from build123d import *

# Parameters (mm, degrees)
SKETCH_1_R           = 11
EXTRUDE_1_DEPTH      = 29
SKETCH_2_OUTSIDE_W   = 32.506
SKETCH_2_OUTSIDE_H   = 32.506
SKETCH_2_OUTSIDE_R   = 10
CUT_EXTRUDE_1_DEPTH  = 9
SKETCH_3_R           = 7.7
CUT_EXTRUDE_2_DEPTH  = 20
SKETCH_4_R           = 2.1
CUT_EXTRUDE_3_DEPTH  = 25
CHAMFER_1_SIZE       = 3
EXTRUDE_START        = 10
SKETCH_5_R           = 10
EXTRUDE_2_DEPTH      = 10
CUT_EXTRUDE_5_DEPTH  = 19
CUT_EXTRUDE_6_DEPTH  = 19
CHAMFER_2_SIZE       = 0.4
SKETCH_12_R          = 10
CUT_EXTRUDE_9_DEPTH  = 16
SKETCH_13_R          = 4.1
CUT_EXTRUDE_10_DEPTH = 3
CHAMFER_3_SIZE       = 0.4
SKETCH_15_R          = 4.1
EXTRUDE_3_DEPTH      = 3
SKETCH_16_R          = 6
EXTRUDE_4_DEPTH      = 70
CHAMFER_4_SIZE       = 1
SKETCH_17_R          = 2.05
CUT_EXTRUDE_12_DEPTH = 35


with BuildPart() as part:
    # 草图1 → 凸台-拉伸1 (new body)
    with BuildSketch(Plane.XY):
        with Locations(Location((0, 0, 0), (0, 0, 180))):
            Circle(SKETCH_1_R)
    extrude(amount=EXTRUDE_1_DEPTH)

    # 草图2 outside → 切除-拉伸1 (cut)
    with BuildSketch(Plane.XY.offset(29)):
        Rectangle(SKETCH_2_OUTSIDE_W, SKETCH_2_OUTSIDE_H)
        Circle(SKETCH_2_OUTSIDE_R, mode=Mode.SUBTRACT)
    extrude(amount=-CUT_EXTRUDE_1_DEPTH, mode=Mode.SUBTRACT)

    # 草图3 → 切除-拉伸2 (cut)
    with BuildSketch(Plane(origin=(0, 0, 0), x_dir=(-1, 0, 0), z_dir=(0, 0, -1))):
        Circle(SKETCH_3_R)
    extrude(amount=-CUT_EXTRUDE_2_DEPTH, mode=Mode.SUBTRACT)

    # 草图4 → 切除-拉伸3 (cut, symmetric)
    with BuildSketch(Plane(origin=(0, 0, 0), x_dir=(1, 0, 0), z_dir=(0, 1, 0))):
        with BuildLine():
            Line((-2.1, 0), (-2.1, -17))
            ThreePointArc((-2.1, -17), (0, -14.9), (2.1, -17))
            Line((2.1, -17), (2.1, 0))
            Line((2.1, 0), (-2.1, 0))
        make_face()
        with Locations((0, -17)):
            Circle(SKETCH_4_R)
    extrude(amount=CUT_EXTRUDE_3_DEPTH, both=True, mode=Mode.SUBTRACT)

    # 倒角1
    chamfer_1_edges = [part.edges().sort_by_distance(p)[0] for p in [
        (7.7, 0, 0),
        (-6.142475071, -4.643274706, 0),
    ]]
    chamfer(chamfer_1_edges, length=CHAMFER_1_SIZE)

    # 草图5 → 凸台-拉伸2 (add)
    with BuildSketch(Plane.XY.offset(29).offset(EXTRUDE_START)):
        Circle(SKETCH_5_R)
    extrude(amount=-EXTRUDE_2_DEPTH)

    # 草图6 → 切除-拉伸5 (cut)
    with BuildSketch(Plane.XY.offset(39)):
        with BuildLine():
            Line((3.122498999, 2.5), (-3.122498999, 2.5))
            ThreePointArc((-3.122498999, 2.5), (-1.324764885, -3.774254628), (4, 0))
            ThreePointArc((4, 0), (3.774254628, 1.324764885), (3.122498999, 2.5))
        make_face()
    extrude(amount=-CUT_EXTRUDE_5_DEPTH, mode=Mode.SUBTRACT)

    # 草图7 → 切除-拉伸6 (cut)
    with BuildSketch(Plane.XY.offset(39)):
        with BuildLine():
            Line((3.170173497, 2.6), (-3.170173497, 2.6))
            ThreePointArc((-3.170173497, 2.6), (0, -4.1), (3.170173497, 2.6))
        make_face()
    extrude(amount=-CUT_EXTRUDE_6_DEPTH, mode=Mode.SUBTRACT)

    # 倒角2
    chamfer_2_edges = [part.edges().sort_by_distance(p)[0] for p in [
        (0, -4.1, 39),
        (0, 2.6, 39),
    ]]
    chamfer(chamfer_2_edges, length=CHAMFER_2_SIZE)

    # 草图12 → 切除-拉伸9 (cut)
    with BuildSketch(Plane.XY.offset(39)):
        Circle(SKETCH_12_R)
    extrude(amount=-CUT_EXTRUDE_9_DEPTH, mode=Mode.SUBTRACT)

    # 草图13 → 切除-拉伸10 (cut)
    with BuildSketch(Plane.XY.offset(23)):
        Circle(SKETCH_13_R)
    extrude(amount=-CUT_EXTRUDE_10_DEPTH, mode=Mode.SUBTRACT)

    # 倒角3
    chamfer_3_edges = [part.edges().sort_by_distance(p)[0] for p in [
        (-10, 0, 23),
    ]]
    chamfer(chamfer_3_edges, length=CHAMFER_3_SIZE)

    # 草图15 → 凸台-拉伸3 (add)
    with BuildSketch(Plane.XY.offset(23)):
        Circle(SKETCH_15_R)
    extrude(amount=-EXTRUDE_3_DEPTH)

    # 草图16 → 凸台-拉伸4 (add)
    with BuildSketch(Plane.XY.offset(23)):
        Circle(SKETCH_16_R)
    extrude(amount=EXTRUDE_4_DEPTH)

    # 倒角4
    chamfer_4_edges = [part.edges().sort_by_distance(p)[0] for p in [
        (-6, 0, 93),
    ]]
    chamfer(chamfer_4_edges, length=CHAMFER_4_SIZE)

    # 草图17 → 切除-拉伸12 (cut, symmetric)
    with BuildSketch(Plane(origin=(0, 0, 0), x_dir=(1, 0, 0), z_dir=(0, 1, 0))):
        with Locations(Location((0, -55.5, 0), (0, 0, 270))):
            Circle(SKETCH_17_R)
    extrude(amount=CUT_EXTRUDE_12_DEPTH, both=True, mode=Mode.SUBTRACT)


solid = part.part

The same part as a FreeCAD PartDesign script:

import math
import FreeCAD as App
import Part
import Sketcher

V = App.Vector
Q = App.Units.Quantity


def edges_at(feature, points):
    """Names of the edges that pass closest to the given points."""
    edges = feature.Shape.Edges
    near = lambda p: min(range(len(edges)), key=lambda i: edges[i].distToShape(Part.Vertex(*p))[0])
    return sorted({f"Edge{near(p) + 1}" for p in points})

doc = App.newDocument("Part")
body = doc.addObject("PartDesign::Body", "Body")

sketch1 = doc.addObject("Sketcher::SketchObject", "Sketch")
body.addObject(sketch1)
sketch1.AttachmentSupport = (doc.XY_Plane, [""])
sketch1.MapMode = "FlatFace"
sketch1.addGeometry(Part.Circle(V(0, 0, 0), V(0, 0, 1), 11), False)
sketch1.addConstraint(Sketcher.Constraint("Coincident", 0, 3, -1, 1))
sketch1.addConstraint(Sketcher.Constraint("Diameter", 0, Q("22 mm")))
pad1 = doc.addObject("PartDesign::Pad", "Pad")
body.addObject(pad1)
pad1.Profile = sketch1
pad1.Length = 29

sketch2 = doc.addObject("Sketcher::SketchObject", "Sketch001")
body.addObject(sketch2)
sketch2.AttachmentSupport = (doc.XY_Plane, [""])
sketch2.MapMode = "FlatFace"
sketch2.AttachmentOffset = App.Placement(V(0, 0, 29), App.Rotation())
sketch2.addGeometry(Part.LineSegment(V(-16, 16, 0), V(-16, -16, 0)), False)
sketch2.addGeometry(Part.LineSegment(V(-16, -16, 0), V(16, -16, 0)), False)
sketch2.addGeometry(Part.LineSegment(V(16, -16, 0), V(16, 16, 0)), False)
sketch2.addGeometry(Part.LineSegment(V(16, 16, 0), V(-16, 16, 0)), False)
sketch2.addGeometry(Part.Circle(V(0, 0, 0), V(0, 0, 1), 10), False)
sketch2.addConstraint(Sketcher.Constraint("Coincident", 0, 2, 1, 1))
sketch2.addConstraint(Sketcher.Constraint("Coincident", 1, 2, 2, 1))
sketch2.addConstraint(Sketcher.Constraint("Coincident", 2, 2, 3, 1))
sketch2.addConstraint(Sketcher.Constraint("Coincident", 3, 2, 0, 1))
sketch2.addConstraint(Sketcher.Constraint("Vertical", 0))
sketch2.addConstraint(Sketcher.Constraint("Horizontal", 1))
sketch2.addConstraint(Sketcher.Constraint("Vertical", 2))
sketch2.addConstraint(Sketcher.Constraint("Horizontal", 3))
sketch2.addConstraint(Sketcher.Constraint("Coincident", 4, 3, -1, 1))
sketch2.addConstraint(Sketcher.Constraint("Symmetric", 0, 2, 2, 2, -1, 1))
sketch2.addConstraint(Sketcher.Constraint("Equal", 3, 0))
sketch2.addConstraint(Sketcher.Constraint("Diameter", 4, Q("20 mm")))
sketch2.addConstraint(Sketcher.Constraint("DistanceX", 1, 1, 1, 2, Q("32.506 mm")))
pocket1 = doc.addObject("PartDesign::Pocket", "Pocket")
body.addObject(pocket1)
pocket1.Profile = sketch2
pocket1.Length = 9

sketch3 = doc.addObject("Sketcher::SketchObject", "Sketch002")
body.addObject(sketch3)
sketch3.AttachmentSupport = (doc.XY_Plane, [""])
sketch3.MapMode = "FlatFace"
sketch3.addGeometry(Part.Circle(V(0, 0, 0), V(0, 0, 1), 8), False)
sketch3.addConstraint(Sketcher.Constraint("Coincident", 0, 3, -1, 1))
sketch3.addConstraint(Sketcher.Constraint("Diameter", 0, Q("15.4 mm")))
pocket2 = doc.addObject("PartDesign::Pocket", "Pocket001")
body.addObject(pocket2)
pocket2.Profile = sketch3
pocket2.Length = 20
pocket2.Reversed = True

sketch4 = doc.addObject("Sketcher::SketchObject", "Sketch003")
body.addObject(sketch4)
sketch4.AttachmentSupport = (doc.XZ_Plane, [""])
sketch4.MapMode = "FlatFace"
sketch4.addGeometry(Part.LineSegment(V(-2.1, 0, 0), V(-2.1, 17, 0)), False)
sketch4.addGeometry(Part.ArcOfCircle(Part.Circle(V(0, 17, 0), V(0, 0, 1), 2.1), math.radians(0), math.radians(180)), False)
sketch4.addGeometry(Part.LineSegment(V(2.1, 17, 0), V(2.1, 0, 0)), False)
sketch4.addGeometry(Part.LineSegment(V(2.1, 0, 0), V(-2.1, 0, 0)), False)
sketch4.addConstraint(Sketcher.Constraint("Tangent", 0, 2, 1, 2))
sketch4.addConstraint(Sketcher.Constraint("Tangent", 1, 1, 2, 1))
sketch4.addConstraint(Sketcher.Constraint("Coincident", 2, 2, 3, 1))
sketch4.addConstraint(Sketcher.Constraint("Coincident", 3, 2, 0, 1))
sketch4.addConstraint(Sketcher.Constraint("Vertical", 0))
sketch4.addConstraint(Sketcher.Constraint("Vertical", 2))
sketch4.addConstraint(Sketcher.Constraint("Horizontal", 3))
sketch4.addConstraint(Sketcher.Constraint("Symmetric", 2, 2, 3, 2, -1, 1))
sketch4.addConstraint(Sketcher.Constraint("Radius", 1, Q("2.1 mm")))
sketch4.addConstraint(Sketcher.Constraint("DistanceY", 0, 1, 0, 2, Q("17 mm")))
pocket3 = doc.addObject("PartDesign::Pocket", "Pocket002")
body.addObject(pocket3)
pocket3.Profile = sketch4
pocket3.Length = 50
pocket3.Midplane = True
doc.recompute()

chamfer = doc.addObject("PartDesign::Chamfer", "Chamfer")
body.addObject(chamfer)
chamfer.Base = (pocket3, edges_at(pocket3, [(7.7, 0, 0), (-6.142, -4.643, 0)]))
chamfer.Size = 3

sketch5 = doc.addObject("Sketcher::SketchObject", "Sketch004")
body.addObject(sketch5)
sketch5.AttachmentSupport = (doc.XY_Plane, [""])
sketch5.MapMode = "FlatFace"
sketch5.AttachmentOffset = App.Placement(V(0, 0, 39), App.Rotation())
sketch5.addGeometry(Part.Circle(V(0, 0, 0), V(0, 0, 1), 10), False)
sketch5.addConstraint(Sketcher.Constraint("Coincident", 0, 3, -1, 1))
sketch5.addConstraint(Sketcher.Constraint("Diameter", 0, Q("20 mm")))
pad2 = doc.addObject("PartDesign::Pad", "Pad001")
body.addObject(pad2)
pad2.Profile = sketch5
pad2.Length = 10
pad2.Reversed = True

sketch6 = doc.addObject("Sketcher::SketchObject", "Sketch005")
body.addObject(sketch6)
sketch6.AttachmentSupport = (doc.XY_Plane, [""])
sketch6.MapMode = "FlatFace"
sketch6.AttachmentOffset = App.Placement(V(0, 0, 39), App.Rotation())
sketch6.addGeometry(Part.LineSegment(V(3.1, 2.5, 0), V(-3.1, 2.5, 0)), False)
sketch6.addGeometry(Part.ArcOfCircle(Part.Circle(V(0, 0, 0), V(0, 0, 1), 4), math.radians(141), math.radians(360)), False)
sketch6.addGeometry(Part.ArcOfCircle(Part.Circle(V(0, 0, 0), V(0, 0, 1), 4), math.radians(0), math.radians(39)), False)
sketch6.addConstraint(Sketcher.Constraint("Coincident", 0, 2, 1, 1))
sketch6.addConstraint(Sketcher.Constraint("Tangent", 1, 2, 2, 1))
sketch6.addConstraint(Sketcher.Constraint("Coincident", 2, 2, 0, 1))
sketch6.addConstraint(Sketcher.Constraint("Horizontal", 0))
sketch6.addConstraint(Sketcher.Constraint("Coincident", 1, 3, -1, 1))
sketch6.addConstraint(Sketcher.Constraint("Equal", 1, 2))
sketch6.addConstraint(Sketcher.Constraint("PointOnObject", 1, 2, -1))
sketch6.addConstraint(Sketcher.Constraint("Radius", 1, Q("4 mm")))
sketch6.addConstraint(Sketcher.Constraint("DistanceY", -1, 1, 0, 2, Q("2.5 mm")))
pocket4 = doc.addObject("PartDesign::Pocket", "Pocket003")
body.addObject(pocket4)
pocket4.Profile = sketch6
pocket4.Length = 19

sketch7 = doc.addObject("Sketcher::SketchObject", "Sketch006")
body.addObject(sketch7)
sketch7.AttachmentSupport = (doc.XY_Plane, [""])
sketch7.MapMode = "FlatFace"
sketch7.AttachmentOffset = App.Placement(V(0, 0, 39), App.Rotation())
sketch7.addGeometry(Part.LineSegment(V(3.2, 2.6, 0), V(-3.2, 2.6, 0)), False)
sketch7.addGeometry(Part.ArcOfCircle(Part.Circle(V(0, 0, 0), V(0, 0, 1), 4.1), math.radians(141), math.radians(399)), False)
sketch7.addConstraint(Sketcher.Constraint("Coincident", 0, 1, 1, 2))
sketch7.addConstraint(Sketcher.Constraint("Coincident", 1, 1, 0, 2))
sketch7.addConstraint(Sketcher.Constraint("Horizontal", 0))
sketch7.addConstraint(Sketcher.Constraint("Coincident", 1, 3, -1, 1))
sketch7.addConstraint(Sketcher.Constraint("Radius", 1, Q("4.1 mm")))
sketch7.addConstraint(Sketcher.Constraint("DistanceY", -1, 1, 0, 1, Q("2.6 mm")))
pocket5 = doc.addObject("PartDesign::Pocket", "Pocket004")
body.addObject(pocket5)
pocket5.Profile = sketch7
pocket5.Length = 19
doc.recompute()

chamfer2 = doc.addObject("PartDesign::Chamfer", "Chamfer001")
body.addObject(chamfer2)
chamfer2.Base = (pocket5, edges_at(pocket5, [(0, -4.1, 39), (0, 2.6, 39)]))
chamfer2.Size = 0.4

sketch8 = doc.addObject("Sketcher::SketchObject", "Sketch007")
body.addObject(sketch8)
sketch8.AttachmentSupport = (doc.XY_Plane, [""])
sketch8.MapMode = "FlatFace"
sketch8.AttachmentOffset = App.Placement(V(0, 0, 39), App.Rotation())
sketch8.addGeometry(Part.Circle(V(0, 0, 0), V(0, 0, 1), 10), False)
sketch8.addConstraint(Sketcher.Constraint("Coincident", 0, 3, -1, 1))
sketch8.addConstraint(Sketcher.Constraint("Diameter", 0, Q("20 mm")))
pocket6 = doc.addObject("PartDesign::Pocket", "Pocket005")
body.addObject(pocket6)
pocket6.Profile = sketch8
pocket6.Length = 16

sketch9 = doc.addObject("Sketcher::SketchObject", "Sketch008")
body.addObject(sketch9)
sketch9.AttachmentSupport = (doc.XY_Plane, [""])
sketch9.MapMode = "FlatFace"
sketch9.AttachmentOffset = App.Placement(V(0, 0, 23), App.Rotation())
sketch9.addGeometry(Part.Circle(V(0, 0, 0), V(0, 0, 1), 4.1), False)
sketch9.addConstraint(Sketcher.Constraint("Coincident", 0, 3, -1, 1))
sketch9.addConstraint(Sketcher.Constraint("Diameter", 0, Q("8.2 mm")))
pocket7 = doc.addObject("PartDesign::Pocket", "Pocket006")
body.addObject(pocket7)
pocket7.Profile = sketch9
pocket7.Length = 3
doc.recompute()

chamfer3 = doc.addObject("PartDesign::Chamfer", "Chamfer002")
body.addObject(chamfer3)
chamfer3.Base = (pocket7, edges_at(pocket7, [(-10, 0, 23)]))
chamfer3.Size = 0.4

sketch10 = doc.addObject("Sketcher::SketchObject", "Sketch009")
body.addObject(sketch10)
sketch10.AttachmentSupport = (doc.XY_Plane, [""])
sketch10.MapMode = "FlatFace"
sketch10.AttachmentOffset = App.Placement(V(0, 0, 23), App.Rotation())
sketch10.addGeometry(Part.Circle(V(0, 0, 0), V(0, 0, 1), 4.1), False)
sketch10.addConstraint(Sketcher.Constraint("Coincident", 0, 3, -1, 1))
sketch10.addConstraint(Sketcher.Constraint("Diameter", 0, Q("8.2 mm")))
pad3 = doc.addObject("PartDesign::Pad", "Pad002")
body.addObject(pad3)
pad3.Profile = sketch10
pad3.Length = 3
pad3.Reversed = True

sketch11 = doc.addObject("Sketcher::SketchObject", "Sketch010")
body.addObject(sketch11)
sketch11.AttachmentSupport = (doc.XY_Plane, [""])
sketch11.MapMode = "FlatFace"
sketch11.AttachmentOffset = App.Placement(V(0, 0, 23), App.Rotation())
sketch11.addGeometry(Part.Circle(V(0, 0, 0), V(0, 0, 1), 6), False)
sketch11.addConstraint(Sketcher.Constraint("Coincident", 0, 3, -1, 1))
sketch11.addConstraint(Sketcher.Constraint("Diameter", 0, Q("12 mm")))
pad4 = doc.addObject("PartDesign::Pad", "Pad003")
body.addObject(pad4)
pad4.Profile = sketch11
pad4.Length = 70
doc.recompute()

chamfer4 = doc.addObject("PartDesign::Chamfer", "Chamfer003")
body.addObject(chamfer4)
chamfer4.Base = (pad4, edges_at(pad4, [(-6, 0, 93)]))
chamfer4.Size = 1

sketch12 = doc.addObject("Sketcher::SketchObject", "Sketch011")
body.addObject(sketch12)
sketch12.AttachmentSupport = (doc.XZ_Plane, [""])
sketch12.MapMode = "FlatFace"
sketch12.addGeometry(Part.Circle(V(0, 55.5, 0), V(0, 0, 1), 2), False)
sketch12.addConstraint(Sketcher.Constraint("PointOnObject", 0, 3, -2))
sketch12.addConstraint(Sketcher.Constraint("Diameter", 0, Q("4.1 mm")))
sketch12.addConstraint(Sketcher.Constraint("DistanceY", -1, 1, 0, 3, Q("55.5 mm")))
pocket8 = doc.addObject("PartDesign::Pocket", "Pocket007")
body.addObject(pocket8)
pocket8.Profile = sketch12
pocket8.Length = 70
pocket8.Midplane = True

doc.recompute()
